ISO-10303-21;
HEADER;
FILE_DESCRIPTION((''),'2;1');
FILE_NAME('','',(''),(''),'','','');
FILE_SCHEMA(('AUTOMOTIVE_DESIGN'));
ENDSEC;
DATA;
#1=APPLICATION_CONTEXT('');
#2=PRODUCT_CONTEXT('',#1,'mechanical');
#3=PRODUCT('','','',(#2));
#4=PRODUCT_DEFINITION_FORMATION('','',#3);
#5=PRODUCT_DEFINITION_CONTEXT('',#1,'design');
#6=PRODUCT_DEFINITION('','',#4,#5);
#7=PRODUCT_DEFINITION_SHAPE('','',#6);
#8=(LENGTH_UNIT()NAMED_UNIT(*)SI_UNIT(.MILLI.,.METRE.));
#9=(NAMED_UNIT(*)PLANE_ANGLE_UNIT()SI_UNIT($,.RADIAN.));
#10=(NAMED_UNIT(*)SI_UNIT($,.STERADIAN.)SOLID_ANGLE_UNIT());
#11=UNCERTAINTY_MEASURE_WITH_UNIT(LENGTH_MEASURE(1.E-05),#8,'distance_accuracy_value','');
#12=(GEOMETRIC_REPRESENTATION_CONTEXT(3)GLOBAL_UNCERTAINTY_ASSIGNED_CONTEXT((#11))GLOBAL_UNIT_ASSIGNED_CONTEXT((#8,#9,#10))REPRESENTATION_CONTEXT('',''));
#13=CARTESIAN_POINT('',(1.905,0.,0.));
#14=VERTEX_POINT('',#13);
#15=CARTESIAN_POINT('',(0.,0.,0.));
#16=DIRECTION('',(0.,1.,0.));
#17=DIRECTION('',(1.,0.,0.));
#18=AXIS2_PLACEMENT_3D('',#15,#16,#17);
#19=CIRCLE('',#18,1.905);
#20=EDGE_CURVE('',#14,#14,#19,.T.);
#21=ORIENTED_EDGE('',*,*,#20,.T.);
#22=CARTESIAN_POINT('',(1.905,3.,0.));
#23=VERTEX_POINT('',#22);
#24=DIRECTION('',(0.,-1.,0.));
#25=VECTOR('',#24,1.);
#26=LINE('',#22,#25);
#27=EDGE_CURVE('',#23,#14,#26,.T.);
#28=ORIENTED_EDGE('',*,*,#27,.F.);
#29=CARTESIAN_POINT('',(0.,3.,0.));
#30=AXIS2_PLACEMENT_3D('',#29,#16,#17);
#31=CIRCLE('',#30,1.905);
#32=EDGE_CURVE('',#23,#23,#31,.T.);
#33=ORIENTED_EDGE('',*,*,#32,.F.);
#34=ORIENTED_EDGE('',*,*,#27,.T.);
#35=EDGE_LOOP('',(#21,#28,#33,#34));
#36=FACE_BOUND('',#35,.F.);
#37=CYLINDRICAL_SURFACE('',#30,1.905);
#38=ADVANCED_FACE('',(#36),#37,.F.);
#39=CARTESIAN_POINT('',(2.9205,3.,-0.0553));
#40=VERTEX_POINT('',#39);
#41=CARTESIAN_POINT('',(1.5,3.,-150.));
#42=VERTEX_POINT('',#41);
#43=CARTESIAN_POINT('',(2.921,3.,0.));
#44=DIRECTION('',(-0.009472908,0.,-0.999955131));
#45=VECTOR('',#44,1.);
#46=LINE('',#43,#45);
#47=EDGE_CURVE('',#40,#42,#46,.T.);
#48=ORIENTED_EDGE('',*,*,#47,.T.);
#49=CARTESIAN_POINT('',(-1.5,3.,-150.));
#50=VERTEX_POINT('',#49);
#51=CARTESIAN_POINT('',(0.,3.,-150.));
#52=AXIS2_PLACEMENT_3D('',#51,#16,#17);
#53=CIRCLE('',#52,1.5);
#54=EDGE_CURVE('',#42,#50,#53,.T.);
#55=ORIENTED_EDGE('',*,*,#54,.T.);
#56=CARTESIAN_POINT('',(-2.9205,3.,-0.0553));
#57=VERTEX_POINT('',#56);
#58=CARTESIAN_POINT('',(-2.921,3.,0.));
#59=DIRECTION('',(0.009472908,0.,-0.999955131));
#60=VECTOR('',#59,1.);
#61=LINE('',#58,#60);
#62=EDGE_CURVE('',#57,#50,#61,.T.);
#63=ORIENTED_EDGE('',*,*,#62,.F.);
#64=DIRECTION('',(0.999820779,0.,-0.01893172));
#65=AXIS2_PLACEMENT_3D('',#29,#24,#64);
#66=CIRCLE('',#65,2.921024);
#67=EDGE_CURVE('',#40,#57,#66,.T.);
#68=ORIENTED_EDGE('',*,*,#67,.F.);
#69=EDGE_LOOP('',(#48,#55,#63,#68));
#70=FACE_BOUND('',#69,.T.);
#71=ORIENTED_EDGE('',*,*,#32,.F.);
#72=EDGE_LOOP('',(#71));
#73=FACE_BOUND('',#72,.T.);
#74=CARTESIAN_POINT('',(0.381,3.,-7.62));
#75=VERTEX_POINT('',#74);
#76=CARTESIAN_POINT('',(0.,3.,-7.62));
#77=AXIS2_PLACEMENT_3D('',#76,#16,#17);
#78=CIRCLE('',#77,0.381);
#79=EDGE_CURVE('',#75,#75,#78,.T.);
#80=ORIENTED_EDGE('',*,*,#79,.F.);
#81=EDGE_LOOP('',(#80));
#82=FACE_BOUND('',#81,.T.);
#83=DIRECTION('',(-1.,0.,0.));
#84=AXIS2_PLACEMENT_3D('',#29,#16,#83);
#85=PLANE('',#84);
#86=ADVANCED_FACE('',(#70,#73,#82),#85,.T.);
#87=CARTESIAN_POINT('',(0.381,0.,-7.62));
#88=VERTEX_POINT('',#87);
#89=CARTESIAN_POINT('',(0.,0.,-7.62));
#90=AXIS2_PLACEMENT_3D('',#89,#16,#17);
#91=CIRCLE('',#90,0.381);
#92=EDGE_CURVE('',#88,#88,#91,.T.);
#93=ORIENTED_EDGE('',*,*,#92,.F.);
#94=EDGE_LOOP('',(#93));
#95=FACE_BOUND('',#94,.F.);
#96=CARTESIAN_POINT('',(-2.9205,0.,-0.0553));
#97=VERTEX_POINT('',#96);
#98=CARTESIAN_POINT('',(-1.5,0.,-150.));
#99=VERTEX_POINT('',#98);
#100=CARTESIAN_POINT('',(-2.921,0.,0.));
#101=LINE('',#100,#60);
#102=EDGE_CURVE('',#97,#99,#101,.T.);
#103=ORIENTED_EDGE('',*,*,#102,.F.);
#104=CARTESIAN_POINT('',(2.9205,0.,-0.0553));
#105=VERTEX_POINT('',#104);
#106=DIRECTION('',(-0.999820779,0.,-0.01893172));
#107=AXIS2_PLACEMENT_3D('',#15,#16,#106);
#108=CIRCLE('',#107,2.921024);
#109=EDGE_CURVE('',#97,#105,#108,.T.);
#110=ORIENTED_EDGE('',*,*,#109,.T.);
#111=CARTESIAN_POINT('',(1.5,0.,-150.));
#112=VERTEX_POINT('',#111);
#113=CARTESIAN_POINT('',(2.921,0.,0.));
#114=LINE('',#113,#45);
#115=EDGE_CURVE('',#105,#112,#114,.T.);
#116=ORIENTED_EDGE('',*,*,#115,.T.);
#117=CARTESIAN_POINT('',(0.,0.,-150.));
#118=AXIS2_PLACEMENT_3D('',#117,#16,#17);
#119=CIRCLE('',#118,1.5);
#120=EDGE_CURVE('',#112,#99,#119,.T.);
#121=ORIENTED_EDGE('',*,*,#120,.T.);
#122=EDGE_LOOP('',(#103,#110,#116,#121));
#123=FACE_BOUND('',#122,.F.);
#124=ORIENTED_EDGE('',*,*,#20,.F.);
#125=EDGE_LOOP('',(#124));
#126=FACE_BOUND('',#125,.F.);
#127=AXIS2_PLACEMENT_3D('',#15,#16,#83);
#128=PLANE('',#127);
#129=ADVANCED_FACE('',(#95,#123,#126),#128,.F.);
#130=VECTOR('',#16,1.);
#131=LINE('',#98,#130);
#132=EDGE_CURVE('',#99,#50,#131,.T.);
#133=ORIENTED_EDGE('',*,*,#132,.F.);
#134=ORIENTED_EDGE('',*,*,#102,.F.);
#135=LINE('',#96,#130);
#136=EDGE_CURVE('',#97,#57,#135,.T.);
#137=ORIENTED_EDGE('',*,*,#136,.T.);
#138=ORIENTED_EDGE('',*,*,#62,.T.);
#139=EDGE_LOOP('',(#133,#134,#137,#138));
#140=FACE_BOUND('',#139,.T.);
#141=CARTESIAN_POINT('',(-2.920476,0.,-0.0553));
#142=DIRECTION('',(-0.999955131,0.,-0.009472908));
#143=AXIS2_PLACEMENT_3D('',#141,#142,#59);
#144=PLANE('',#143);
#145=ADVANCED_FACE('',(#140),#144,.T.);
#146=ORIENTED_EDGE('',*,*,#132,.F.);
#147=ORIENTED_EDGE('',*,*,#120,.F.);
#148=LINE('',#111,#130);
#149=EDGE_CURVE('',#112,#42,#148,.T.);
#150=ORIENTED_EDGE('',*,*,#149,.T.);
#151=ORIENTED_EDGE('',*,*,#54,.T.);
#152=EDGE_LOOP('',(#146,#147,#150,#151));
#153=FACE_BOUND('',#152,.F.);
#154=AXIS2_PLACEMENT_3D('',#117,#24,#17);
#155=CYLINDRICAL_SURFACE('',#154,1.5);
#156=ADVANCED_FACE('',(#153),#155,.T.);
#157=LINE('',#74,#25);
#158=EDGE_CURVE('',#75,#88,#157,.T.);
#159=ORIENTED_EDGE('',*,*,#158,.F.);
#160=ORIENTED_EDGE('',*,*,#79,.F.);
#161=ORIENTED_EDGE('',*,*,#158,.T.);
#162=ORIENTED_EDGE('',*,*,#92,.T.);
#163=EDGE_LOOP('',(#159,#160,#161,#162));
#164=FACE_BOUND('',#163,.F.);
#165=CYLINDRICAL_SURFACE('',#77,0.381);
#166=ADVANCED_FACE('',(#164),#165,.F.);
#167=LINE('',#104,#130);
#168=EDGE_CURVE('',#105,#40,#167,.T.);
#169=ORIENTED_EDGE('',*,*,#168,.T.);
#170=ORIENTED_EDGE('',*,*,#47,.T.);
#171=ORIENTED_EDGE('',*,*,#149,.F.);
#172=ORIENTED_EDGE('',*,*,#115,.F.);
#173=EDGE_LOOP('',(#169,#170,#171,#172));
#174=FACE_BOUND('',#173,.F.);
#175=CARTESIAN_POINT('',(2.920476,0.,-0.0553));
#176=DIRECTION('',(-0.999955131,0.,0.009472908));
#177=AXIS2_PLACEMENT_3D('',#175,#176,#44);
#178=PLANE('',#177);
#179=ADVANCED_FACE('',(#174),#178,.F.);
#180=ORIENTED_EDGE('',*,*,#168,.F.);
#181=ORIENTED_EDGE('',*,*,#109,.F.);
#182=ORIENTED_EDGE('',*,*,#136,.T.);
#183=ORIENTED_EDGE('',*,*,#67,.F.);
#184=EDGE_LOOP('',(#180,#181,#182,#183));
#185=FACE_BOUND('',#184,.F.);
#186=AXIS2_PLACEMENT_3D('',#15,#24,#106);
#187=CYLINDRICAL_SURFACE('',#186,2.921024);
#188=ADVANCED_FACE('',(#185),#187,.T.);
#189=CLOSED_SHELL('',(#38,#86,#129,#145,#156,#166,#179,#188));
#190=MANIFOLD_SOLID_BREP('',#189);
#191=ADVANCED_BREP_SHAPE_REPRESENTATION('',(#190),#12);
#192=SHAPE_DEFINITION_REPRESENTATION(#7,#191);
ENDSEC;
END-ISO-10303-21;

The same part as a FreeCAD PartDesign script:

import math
import FreeCAD as App
import Part
import Sketcher
from FreeCAD import Vector
Q = App.Units.Quantity

doc = App.newDocument("Part")
body = doc.addObject("PartDesign::Body", "Body")

# Sketch on XZ plane
sketch1 = body.newObject("Sketcher::SketchObject", "Sketch")
sketch1.AttachmentSupport = (doc.getObject("XZ_Plane"), [""])
sketch1.MapMode = "FlatFace"
sketch1.addGeometry([
    Part.LineSegment(Vector(-1.5, -150, 0), Vector(-2.920476, -0.0553, 0)),
    Part.ArcOfCircle(Part.Circle(Vector(0, 0, 0), Vector(0, 0, 1), 2.921024), math.radians(-1.084772), math.radians(181.084772)),
    Part.LineSegment(Vector(2.920476, -0.0553, 0), Vector(1.5, -150, 0)),
    Part.ArcOfCircle(Part.Circle(Vector(0, -150, 0), Vector(0, 0, 1), 1.5), math.radians(180), math.radians(360)),
], False)
sketch1.addConstraint([
    Sketcher.Constraint("Coincident", 0, 2, 1, 2),
    Sketcher.Constraint("Coincident", 1, 1, 2, 1),
    Sketcher.Constraint("Coincident", 2, 2, 3, 2),
    Sketcher.Constraint("Coincident", 3, 1, 0, 1),
    Sketcher.Constraint("Coincident", 1, 3, -1, 1),
    Sketcher.Constraint("Symmetric", 2, 2, 3, 1, -2),
    Sketcher.Constraint("Horizontal", 0, 2, 1, 1),
    Sketcher.Constraint("Horizontal", 3, 3, 2, 2),
    Sketcher.Constraint("Radius", 1, Q("0.115 in")),
    Sketcher.Constraint("Radius", 3, Q("1.5 mm")),
    Sketcher.Constraint("Distance", 0, Q("5.9036 in")),
    Sketcher.Constraint("DistanceY", 3, 3, -1, 1, Q("5.9055 in")),
])
pad1 = body.newObject("PartDesign::Pad", "Pad")
pad1.Profile = sketch1
pad1.Length = Q("0.1181102 in")
pad1.Reversed = True

# Sketch on XZ plane
sketch2 = body.newObject("Sketcher::SketchObject", "Sketch001")
sketch2.AttachmentSupport = (doc.getObject("XZ_Plane"), [""])
sketch2.MapMode = "FlatFace"
sketch2.AttachmentOffset = App.Placement(Vector(0, 0, -0.1181102 * 25.4), App.Rotation())
sketch2.addGeometry(Part.Circle(Vector(0, 0, 0), Vector(0, 0, 1), 1.905), False)
sketch2.addConstraint([
    Sketcher.Constraint("Coincident", 0, 3, -1, 1),
    Sketcher.Constraint("Diameter", 0, Q("0.15 in")),
])
pocket1 = body.newObject("PartDesign::Pocket", "Pocket")
pocket1.Profile = sketch2
pocket1.Length = Q("0.1181102 in")
pocket1.Reversed = True

# Sketch on XZ plane
sketch3 = body.newObject("Sketcher::SketchObject", "Sketch002")
sketch3.AttachmentSupport = (doc.getObject("XZ_Plane"), [""])
sketch3.MapMode = "FlatFace"
sketch3.AttachmentOffset = App.Placement(Vector(0, 0, -0.1181102 * 25.4), App.Rotation())
sketch3.addGeometry(Part.Circle(Vector(0, -7.62, 0), Vector(0, 0, 1), 0.381), False)
sketch3.addConstraint([
    Sketcher.Constraint("PointOnObject", 0, 3, -2),
    Sketcher.Constraint("Diameter", 0, Q("0.03 in")),
    Sketcher.Constraint("DistanceY", 0, 3, -1, 1, Q("0.3 in")),
])
pocket2 = body.newObject("PartDesign::Pocket", "Pocket001")
pocket2.Profile = sketch3
pocket2.Length = Q("0.1181102 in")
pocket2.Reversed = True

doc.recompute()
